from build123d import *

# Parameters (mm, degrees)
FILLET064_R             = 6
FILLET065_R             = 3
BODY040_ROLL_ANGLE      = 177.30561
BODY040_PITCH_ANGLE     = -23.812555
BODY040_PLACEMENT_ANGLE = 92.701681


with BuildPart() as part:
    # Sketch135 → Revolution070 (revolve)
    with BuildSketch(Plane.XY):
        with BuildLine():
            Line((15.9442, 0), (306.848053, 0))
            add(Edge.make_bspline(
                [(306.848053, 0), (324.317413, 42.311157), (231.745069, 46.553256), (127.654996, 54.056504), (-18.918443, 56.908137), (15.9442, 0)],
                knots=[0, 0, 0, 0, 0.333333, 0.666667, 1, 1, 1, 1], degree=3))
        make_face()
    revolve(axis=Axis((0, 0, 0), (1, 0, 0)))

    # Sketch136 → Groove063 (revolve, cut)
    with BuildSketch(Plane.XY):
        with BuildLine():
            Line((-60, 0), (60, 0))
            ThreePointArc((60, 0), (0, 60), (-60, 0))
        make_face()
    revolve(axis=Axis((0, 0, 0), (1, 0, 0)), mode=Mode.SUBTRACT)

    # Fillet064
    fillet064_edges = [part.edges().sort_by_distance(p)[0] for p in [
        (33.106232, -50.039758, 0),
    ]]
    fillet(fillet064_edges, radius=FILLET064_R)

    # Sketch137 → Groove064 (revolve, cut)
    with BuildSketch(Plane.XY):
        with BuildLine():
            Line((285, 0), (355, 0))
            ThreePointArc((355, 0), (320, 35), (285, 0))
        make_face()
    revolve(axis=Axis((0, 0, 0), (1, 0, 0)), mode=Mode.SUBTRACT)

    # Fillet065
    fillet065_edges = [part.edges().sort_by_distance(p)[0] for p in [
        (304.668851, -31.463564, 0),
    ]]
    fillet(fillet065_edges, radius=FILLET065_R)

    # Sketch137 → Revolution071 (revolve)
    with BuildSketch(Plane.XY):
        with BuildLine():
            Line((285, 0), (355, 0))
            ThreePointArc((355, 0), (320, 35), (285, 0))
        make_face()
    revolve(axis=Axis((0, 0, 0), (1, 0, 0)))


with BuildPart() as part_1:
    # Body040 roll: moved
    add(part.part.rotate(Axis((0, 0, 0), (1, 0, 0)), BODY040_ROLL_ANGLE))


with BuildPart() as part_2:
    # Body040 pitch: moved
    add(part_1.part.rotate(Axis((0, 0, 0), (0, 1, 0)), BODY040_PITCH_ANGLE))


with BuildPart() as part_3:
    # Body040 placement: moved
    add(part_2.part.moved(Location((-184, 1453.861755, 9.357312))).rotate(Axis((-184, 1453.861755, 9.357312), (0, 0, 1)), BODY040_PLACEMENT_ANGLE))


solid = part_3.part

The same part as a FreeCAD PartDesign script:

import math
import FreeCAD as App
import Part
import Sketcher


def edges_at(feature, points):
    """Names of the edges that pass closest to the given points."""
    edges = feature.Shape.Edges
    near = lambda p: min(range(len(edges)), key=lambda i: edges[i].distToShape(Part.Vertex(*p))[0])
    return sorted({f"Edge{near(p) + 1}" for p in points})

doc = App.newDocument("Part")
body = doc.addObject("PartDesign::Body", "Body")

# Sketch on XY plane
sketch1 = body.newObject("Sketcher::SketchObject", "Sketch")
sketch1.AttachmentSupport = (doc.getObject("XY_Plane"), [""])
sketch1.MapMode = "FlatFace"
sketch1.addGeometry(Part.LineSegment(App.Vector(15.9442, 0, 0), App.Vector(306.848053, 0, 0)), False)
sketch1.addGeometry(Part.BSplineCurve([App.Vector(306.848053, 0, 0), App.Vector(324.317413, 42.311157, 0), App.Vector(231.745069, 46.553256, 0), App.Vector(127.654996, 54.056504, 0), App.Vector(-18.918443, 56.908137, 0), App.Vector(15.9442, 0, 0)], [4, 1, 1, 4], [0, 0.333333, 0.666667, 1], False, 3, [1, 1, 1, 1, 1, 1], False), False)
sketch1.addConstraint(Sketcher.Constraint("Block", 1))
sketch1.addConstraint(Sketcher.Constraint("Coincident", 0, 1, 1, 2))
sketch1.addConstraint(Sketcher.Constraint("Coincident", 1, 1, 0, 2))
revolution = body.newObject("PartDesign::Revolution", "Revolution")
revolution.Profile = sketch1
revolution.ReferenceAxis = (sketch1, ["H_Axis"])
revolution.Angle = 360

# Sketch on XY plane
sketch2 = body.newObject("Sketcher::SketchObject", "Sketch001")
sketch2.AttachmentSupport = (doc.getObject("XY_Plane"), [""])
sketch2.MapMode = "FlatFace"
sketch2.addGeometry(Part.LineSegment(App.Vector(-60, 0, 0), App.Vector(60, 0, 0)), False)
sketch2.addGeometry(Part.ArcOfCircle(Part.Circle(App.Vector(0, 0, 0), App.Vector(0, 0, 1), 60), math.radians(0), math.radians(180)), False)
sketch2.addConstraint(Sketcher.Constraint("Coincident", 0, 1, 1, 2))
sketch2.addConstraint(Sketcher.Constraint("Coincident", 1, 1, 0, 2))
sketch2.addConstraint(Sketcher.Constraint("Horizontal", 0))
sketch2.addConstraint(Sketcher.Constraint("Coincident", 1, 3, -1, 1))
sketch2.addConstraint(Sketcher.Constraint("PointOnObject", 0, 1, -1))
sketch2.addConstraint(Sketcher.Constraint("Radius", 1, 60.0))
groove = body.newObject("PartDesign::Groove", "Groove")
groove.Profile = sketch2
groove.ReferenceAxis = (sketch2, ["H_Axis"])
groove.Angle = 360
doc.recompute()

fillet = body.newObject("PartDesign::Fillet", "Fillet")
fillet.Base = (groove, edges_at(groove, [(33.106, -50.04, 0)]))
fillet.Radius = 6

# Sketch on XY plane
sketch3 = body.newObject("Sketcher::SketchObject", "Sketch002")
sketch3.AttachmentSupport = (doc.getObject("XY_Plane"), [""])
sketch3.MapMode = "FlatFace"
sketch3.addGeometry(Part.LineSegment(App.Vector(285, 0, 0), App.Vector(355, 0, 0)), False)
sketch3.addGeometry(Part.ArcOfCircle(Part.Circle(App.Vector(320, 0, 0), App.Vector(0, 0, 1), 35), math.radians(0), math.radians(180)), False)
sketch3.addConstraint(Sketcher.Constraint("Coincident", 0, 1, 1, 2))
sketch3.addConstraint(Sketcher.Constraint("Coincident", 1, 1, 0, 2))
sketch3.addConstraint(Sketcher.Constraint("Horizontal", 0))
sketch3.addConstraint(Sketcher.Constraint("PointOnObject", 1, 3, -1))
sketch3.addConstraint(Sketcher.Constraint("PointOnObject", 0, 1, -1))
sketch3.addConstraint(Sketcher.Constraint("Radius", 1, 35.0))
sketch3.addConstraint(Sketcher.Constraint("DistanceX", -1, 1, 1, 3, 320.0))
groove2 = body.newObject("PartDesign::Groove", "Groove001")
groove2.Profile = sketch3
groove2.ReferenceAxis = (sketch3, ["H_Axis"])
groove2.Angle = 360
doc.recompute()

fillet2 = body.newObject("PartDesign::Fillet", "Fillet001")
fillet2.Base = (groove2, edges_at(groove2, [(304.669, -31.464, 0)]))
fillet2.Radius = 3

# Sketch on XY plane
sketch4 = body.newObject("Sketcher::SketchObject", "Sketch003")
sketch4.AttachmentSupport = (doc.getObject("XY_Plane"), [""])
sketch4.MapMode = "FlatFace"
sketch4.addGeometry(Part.LineSegment(App.Vector(285, 0, 0), App.Vector(355, 0, 0)), False)
sketch4.addGeometry(Part.ArcOfCircle(Part.Circle(App.Vector(320, 0, 0), App.Vector(0, 0, 1), 35), math.radians(0), math.radians(180)), False)
sketch4.addConstraint(Sketcher.Constraint("Coincident", 0, 1, 1, 2))
sketch4.addConstraint(Sketcher.Constraint("Coincident", 1, 1, 0, 2))
sketch4.addConstraint(Sketcher.Constraint("Horizontal", 0))
sketch4.addConstraint(Sketcher.Constraint("PointOnObject", 1, 3, -1))
sketch4.addConstraint(Sketcher.Constraint("PointOnObject", 0, 1, -1))
sketch4.addConstraint(Sketcher.Constraint("Radius", 1, 35.0))
sketch4.addConstraint(Sketcher.Constraint("DistanceX", -1, 1, 1, 3, 320.0))
revolution2 = body.newObject("PartDesign::Revolution", "Revolution001")
revolution2.Profile = sketch4
revolution2.ReferenceAxis = (sketch4, ["H_Axis"])
revolution2.Angle = 360
body2 = doc.addObject("PartDesign::Body", "Body001")
doc.recompute()

body.Placement = App.Placement(App.Vector(0, 0, 0), App.Rotation(App.Vector(1, 0, 0), 177.30561))
boolean = body2.newObject("PartDesign::Boolean", "Boolean")
boolean.Type = "Fuse"
boolean.addObjects([body])
body3 = doc.addObject("PartDesign::Body", "Body002")
doc.recompute()

body2.Placement = App.Placement(App.Vector(0, 0, 0), App.Rotation(App.Vector(0, 1, 0), 336.187445))
boolean2 = body3.newObject("PartDesign::Boolean", "Boolean001")
boolean2.Type = "Fuse"
boolean2.addObjects([body2])
body4 = doc.addObject("PartDesign::Body", "Body003")
doc.recompute()

body3.Placement = App.Placement(App.Vector(-184, 1453.861755, 9.357312), App.Rotation(App.Vector(0, 0, 1), 92.701681))
boolean3 = body4.newObject("PartDesign::Boolean", "Boolean002")
boolean3.Type = "Fuse"
boolean3.addObjects([body3])

doc.recompute()
